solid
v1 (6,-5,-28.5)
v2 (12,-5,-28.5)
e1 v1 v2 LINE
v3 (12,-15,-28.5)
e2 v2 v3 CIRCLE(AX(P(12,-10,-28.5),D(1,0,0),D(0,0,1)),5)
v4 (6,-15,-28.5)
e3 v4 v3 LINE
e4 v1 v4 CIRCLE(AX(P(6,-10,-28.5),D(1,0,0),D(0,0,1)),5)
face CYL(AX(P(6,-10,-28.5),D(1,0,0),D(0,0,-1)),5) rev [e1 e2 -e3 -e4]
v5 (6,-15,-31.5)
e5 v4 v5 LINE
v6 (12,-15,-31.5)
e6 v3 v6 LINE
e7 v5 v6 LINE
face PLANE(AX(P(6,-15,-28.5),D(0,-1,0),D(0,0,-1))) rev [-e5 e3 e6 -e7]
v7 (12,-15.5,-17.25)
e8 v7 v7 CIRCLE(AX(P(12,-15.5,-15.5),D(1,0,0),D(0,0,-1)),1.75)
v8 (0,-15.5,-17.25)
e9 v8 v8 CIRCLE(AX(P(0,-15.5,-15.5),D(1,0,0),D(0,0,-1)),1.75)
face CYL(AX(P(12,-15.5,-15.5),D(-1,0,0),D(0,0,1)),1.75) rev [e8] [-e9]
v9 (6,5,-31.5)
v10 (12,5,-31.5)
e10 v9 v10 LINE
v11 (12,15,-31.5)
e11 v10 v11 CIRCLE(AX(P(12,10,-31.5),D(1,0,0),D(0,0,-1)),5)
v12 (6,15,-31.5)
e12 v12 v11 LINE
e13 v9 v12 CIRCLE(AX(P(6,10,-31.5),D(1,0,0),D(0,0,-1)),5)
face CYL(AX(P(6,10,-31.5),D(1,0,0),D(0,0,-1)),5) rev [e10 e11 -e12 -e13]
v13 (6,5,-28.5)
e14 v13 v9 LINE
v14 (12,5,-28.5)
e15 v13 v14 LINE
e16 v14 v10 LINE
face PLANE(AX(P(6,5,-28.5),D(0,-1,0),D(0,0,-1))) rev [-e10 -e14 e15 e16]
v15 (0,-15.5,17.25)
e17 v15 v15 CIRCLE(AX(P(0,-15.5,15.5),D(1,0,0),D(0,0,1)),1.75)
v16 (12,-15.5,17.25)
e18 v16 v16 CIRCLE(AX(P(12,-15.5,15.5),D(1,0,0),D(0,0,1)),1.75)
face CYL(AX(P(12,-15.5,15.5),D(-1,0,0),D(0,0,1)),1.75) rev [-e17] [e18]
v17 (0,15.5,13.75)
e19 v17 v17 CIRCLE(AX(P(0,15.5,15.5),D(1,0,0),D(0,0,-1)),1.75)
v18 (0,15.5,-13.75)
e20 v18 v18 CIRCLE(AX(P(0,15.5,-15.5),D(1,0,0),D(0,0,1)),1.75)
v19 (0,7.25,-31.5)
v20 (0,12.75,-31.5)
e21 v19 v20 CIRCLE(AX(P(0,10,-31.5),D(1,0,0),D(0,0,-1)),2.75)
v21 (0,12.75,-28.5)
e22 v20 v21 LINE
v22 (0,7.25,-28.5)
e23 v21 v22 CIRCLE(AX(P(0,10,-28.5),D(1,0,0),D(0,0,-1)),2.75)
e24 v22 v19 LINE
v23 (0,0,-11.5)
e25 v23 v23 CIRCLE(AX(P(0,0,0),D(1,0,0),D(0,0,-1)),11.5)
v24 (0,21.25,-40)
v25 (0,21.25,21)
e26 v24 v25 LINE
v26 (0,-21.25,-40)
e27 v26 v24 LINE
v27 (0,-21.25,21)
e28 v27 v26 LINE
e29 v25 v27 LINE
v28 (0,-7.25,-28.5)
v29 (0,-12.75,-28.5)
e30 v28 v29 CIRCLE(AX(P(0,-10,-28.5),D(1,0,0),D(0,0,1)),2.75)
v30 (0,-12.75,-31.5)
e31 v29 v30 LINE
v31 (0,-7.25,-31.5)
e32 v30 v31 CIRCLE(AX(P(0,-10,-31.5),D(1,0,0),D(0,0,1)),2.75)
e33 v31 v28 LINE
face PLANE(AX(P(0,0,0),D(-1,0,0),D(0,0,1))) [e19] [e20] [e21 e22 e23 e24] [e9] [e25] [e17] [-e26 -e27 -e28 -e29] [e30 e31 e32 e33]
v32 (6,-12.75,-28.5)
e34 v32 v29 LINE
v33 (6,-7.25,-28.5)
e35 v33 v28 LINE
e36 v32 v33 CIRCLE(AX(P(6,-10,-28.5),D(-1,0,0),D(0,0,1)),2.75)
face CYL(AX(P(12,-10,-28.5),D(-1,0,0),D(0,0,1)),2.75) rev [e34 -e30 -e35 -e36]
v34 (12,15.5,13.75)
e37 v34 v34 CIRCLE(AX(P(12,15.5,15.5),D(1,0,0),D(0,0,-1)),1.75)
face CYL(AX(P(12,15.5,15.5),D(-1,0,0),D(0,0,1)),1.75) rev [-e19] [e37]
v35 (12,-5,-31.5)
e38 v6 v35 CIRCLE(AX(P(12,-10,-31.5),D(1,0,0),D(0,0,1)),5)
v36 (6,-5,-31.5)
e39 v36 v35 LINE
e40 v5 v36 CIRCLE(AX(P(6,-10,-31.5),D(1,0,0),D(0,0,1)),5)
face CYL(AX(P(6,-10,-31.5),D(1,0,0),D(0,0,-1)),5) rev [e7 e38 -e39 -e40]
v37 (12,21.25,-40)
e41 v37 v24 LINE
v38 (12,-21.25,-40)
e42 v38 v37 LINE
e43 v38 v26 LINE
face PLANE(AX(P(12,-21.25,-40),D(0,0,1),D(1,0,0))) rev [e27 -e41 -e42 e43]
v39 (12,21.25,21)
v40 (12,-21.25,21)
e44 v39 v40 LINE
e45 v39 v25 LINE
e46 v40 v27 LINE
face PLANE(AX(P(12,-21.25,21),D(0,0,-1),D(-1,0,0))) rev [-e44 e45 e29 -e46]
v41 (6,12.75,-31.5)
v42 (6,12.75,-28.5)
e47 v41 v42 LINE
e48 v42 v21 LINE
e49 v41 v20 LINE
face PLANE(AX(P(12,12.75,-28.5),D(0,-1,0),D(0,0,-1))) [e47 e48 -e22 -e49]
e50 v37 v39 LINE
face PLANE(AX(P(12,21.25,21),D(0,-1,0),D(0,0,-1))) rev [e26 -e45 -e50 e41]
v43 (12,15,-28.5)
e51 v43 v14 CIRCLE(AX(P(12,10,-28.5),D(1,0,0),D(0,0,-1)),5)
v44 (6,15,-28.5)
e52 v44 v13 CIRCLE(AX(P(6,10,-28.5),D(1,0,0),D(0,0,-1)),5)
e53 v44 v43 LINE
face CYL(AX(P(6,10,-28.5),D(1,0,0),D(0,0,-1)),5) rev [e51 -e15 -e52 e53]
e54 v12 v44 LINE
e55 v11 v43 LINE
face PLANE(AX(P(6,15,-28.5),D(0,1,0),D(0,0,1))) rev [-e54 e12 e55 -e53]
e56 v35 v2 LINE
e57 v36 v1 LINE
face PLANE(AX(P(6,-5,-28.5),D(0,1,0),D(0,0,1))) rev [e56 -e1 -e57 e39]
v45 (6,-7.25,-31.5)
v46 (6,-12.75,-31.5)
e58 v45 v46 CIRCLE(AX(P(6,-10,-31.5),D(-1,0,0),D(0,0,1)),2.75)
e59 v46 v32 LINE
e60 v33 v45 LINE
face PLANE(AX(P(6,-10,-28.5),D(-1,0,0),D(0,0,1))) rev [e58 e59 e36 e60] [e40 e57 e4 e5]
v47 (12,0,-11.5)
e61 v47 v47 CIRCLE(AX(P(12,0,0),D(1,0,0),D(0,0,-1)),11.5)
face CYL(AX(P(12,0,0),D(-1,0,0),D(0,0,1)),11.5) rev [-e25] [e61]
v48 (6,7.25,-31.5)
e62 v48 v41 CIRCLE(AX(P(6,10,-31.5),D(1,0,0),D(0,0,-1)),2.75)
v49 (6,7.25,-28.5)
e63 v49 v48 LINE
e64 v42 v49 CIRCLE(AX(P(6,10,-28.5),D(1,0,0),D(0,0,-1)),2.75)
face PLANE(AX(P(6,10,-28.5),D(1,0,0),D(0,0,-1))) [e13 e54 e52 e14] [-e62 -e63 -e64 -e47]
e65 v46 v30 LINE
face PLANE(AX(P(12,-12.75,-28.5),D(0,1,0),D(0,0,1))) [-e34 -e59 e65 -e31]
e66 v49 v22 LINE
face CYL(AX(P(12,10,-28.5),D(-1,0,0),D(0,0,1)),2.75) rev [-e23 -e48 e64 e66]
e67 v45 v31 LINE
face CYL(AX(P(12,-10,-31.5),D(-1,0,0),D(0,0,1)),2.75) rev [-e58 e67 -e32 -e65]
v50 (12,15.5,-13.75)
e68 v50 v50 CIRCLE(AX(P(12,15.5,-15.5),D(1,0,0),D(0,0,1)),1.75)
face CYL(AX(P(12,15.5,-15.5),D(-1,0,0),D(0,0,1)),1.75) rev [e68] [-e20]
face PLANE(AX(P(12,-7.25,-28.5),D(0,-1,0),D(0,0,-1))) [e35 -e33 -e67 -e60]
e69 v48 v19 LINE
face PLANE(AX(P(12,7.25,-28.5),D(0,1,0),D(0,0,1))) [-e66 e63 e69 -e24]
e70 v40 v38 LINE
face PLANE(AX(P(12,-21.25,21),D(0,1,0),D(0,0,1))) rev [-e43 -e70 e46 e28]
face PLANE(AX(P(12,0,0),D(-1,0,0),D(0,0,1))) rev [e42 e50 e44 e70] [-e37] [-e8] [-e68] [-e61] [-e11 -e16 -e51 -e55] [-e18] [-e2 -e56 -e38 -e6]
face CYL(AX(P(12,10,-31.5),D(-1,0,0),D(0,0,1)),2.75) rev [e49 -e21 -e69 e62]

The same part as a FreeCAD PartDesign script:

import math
import FreeCAD as App
import Part
import Sketcher
from FreeCAD import Vector
Q = App.Units.Quantity


def add_polygon(sketch, points):
    """Adds a closed chain of lines whose ends are joined by coincident constraints."""
    first, n = sketch.GeometryCount, len(points)
    for a, b in zip(points, points[1:] + points[:1]):
        sketch.addGeometry(Part.LineSegment(App.Vector(*a, 0), App.Vector(*b, 0)), False)
    for i in range(n):
        sketch.addConstraint(Sketcher.Constraint("Coincident", first + i, 2, first + (i + 1) % n, 1))

doc = App.newDocument("Part")
params = doc.addObject("Spreadsheet::Sheet", "Params")
for row, (alias, value) in enumerate([
    ("sketch1_diameter", "23 mm"),
    ("sketch1_diameter2", "3.5 mm"),
    ("sketch1_height", "61 mm"),
    ("sketch1_height2", "3 mm"),
    ("sketch1_radius", "2.75 mm"),
    ("pad1_length", "12 mm"),
    ("sketch2_radius", "5 mm"),
    ("sketch2_height", "3 mm"),
    ("pocket1_length", "6 mm"),
], start=1):
    params.set(f"A{row}", alias)
    params.set(f"B{row}", "=" + value)
    params.setAlias(f"B{row}", alias)

body = doc.addObject("PartDesign::Body", "Body")

sketch1 = body.newObject("Sketcher::SketchObject", "Sketch")
sketch1.AttachmentSupport = (doc.getObject("YZ_Plane"), [""])
sketch1.MapMode = "FlatFace"
add_polygon(sketch1, [(21.2, 21), (-21.2, 21), (-21.2, -40), (21.2, -40)])
sketch1.addGeometry(Part.Circle(Vector(-15.5, 15.5, 0), Vector(0, 0, 1), 1.8), False)
sketch1.addGeometry(Part.Circle(Vector(-15.5, -15.5, 0), Vector(0, 0, 1), 1.8), False)
sketch1.addGeometry(Part.LineSegment(Vector(-12.8, -31.5, 0), Vector(-12.8, -28.5, 0)), False)
sketch1.addGeometry(Part.ArcOfCircle(Part.Circle(Vector(-10, -28.5, 0), Vector(0, 0, 1), 2.8), math.radians(0), math.radians(180)), False)
sketch1.addGeometry(Part.LineSegment(Vector(-7.2, -28.5, 0), Vector(-7.2, -31.5, 0)), False)
sketch1.addGeometry(Part.ArcOfCircle(Part.Circle(Vector(-10, -31.5, 0), Vector(0, 0, 1), 2.8), math.radians(180), math.radians(360)), False)
sketch1.addGeometry(Part.Circle(Vector(0, 0, 0), Vector(0, 0, 1), 11.5), False)
sketch1.addGeometry(Part.Circle(Vector(15.5, 15.5, 0), Vector(0, 0, 1), 1.8), False)
sketch1.addGeometry(Part.Circle(Vector(15.5, -15.5, 0), Vector(0, 0, 1), 1.8), False)
sketch1.addGeometry(Part.ArcOfCircle(Part.Circle(Vector(10, -28.5, 0), Vector(0, 0, 1), 2.8), math.radians(0), math.radians(180)), False)
sketch1.addGeometry(Part.LineSegment(Vector(12.8, -28.5, 0), Vector(12.8, -31.5, 0)), False)
sketch1.addGeometry(Part.ArcOfCircle(Part.Circle(Vector(10, -31.5, 0), Vector(0, 0, 1), 2.8), math.radians(180), math.radians(360)), False)
sketch1.addGeometry(Part.LineSegment(Vector(7.2, -31.5, 0), Vector(7.2, -28.5, 0)), False)
sketch1.addConstraint([
    Sketcher.Constraint("Tangent", 6, 2, 7, 2),
    Sketcher.Constraint("Tangent", 7, 1, 8, 1),
    Sketcher.Constraint("Tangent", 8, 2, 9, 2),
    Sketcher.Constraint("Tangent", 9, 1, 6, 1),
    Sketcher.Constraint("Tangent", 13, 1, 14, 1),
    Sketcher.Constraint("Tangent", 14, 2, 15, 2),
    Sketcher.Constraint("Tangent", 15, 1, 16, 1),
    Sketcher.Constraint("Tangent", 16, 2, 13, 2),
    Sketcher.Constraint("Horizontal", 0),
    Sketcher.Constraint("Vertical", 1),
    Sketcher.Constraint("Horizontal", 2),
    Sketcher.Constraint("Vertical", 3),
    Sketcher.Constraint("Vertical", 6),
    Sketcher.Constraint("Vertical", 8),
    Sketcher.Constraint("Vertical", 14),
    Sketcher.Constraint("Vertical", 16),
    Sketcher.Constraint("Coincident", 10, 3, -1, 1),
    Sketcher.Constraint("Equal", 4, 5),
    Sketcher.Constraint("Equal", 5, 11),
    Sketcher.Constraint("Equal", 11, 12),
    Sketcher.Constraint("Equal", 9, 13),
    Sketcher.Constraint("Symmetric", 5, 3, 11, 3, -1, 1),
    Sketcher.Constraint("Symmetric", 4, 3, 12, 3, -1, 1),
    Sketcher.Constraint("Symmetric", 4, 3, 11, 3, -2),
    Sketcher.Constraint("Symmetric", 7, 3, 13, 3, -2),
    Sketcher.Constraint("Horizontal", 9, 3, 15, 3),
    Sketcher.Constraint("Diameter", 10, Q("23 mm")),
    Sketcher.Constraint("Diameter", 4, Q("3.5 mm")),
    Sketcher.Constraint("DistanceY", 1, 2, 1, 1, Q("61 mm")),
    Sketcher.Constraint("DistanceY", 6, 1, 6, 2, Q("3 mm")),
    Sketcher.Constraint("Radius", 7, Q("2.75 mm")),
    Sketcher.Constraint("DistanceX", 0, 2, 0, 1, Q("42.5 mm")),
    Sketcher.Constraint("DistanceX", 7, 3, -1, 1, Q("10 mm")),
    Sketcher.Constraint("DistanceY", -1, 1, 0, 2, Q("21 mm")),
    Sketcher.Constraint("DistanceY", 5, 3, 4, 3, Q("31 mm")),
    Sketcher.Constraint("DistanceY", 7, 3, 5, 3, Q("13 mm")),
    Sketcher.Constraint("DistanceX", 4, 3, 11, 3, Q("31 mm")),
    Sketcher.Constraint("DistanceX", 1, 2, 8, 2, Q("14 mm")),
])
sketch1.setExpression("Constraints[30]", "Params.sketch1_diameter")
sketch1.setExpression("Constraints[31]", "Params.sketch1_diameter2")
sketch1.setExpression("Constraints[32]", "Params.sketch1_height")
sketch1.setExpression("Constraints[33]", "Params.sketch1_height2")
sketch1.setExpression("Constraints[34]", "Params.sketch1_radius")
pad1 = body.newObject("PartDesign::Pad", "Pad")
pad1.Profile = sketch1
pad1.setExpression("Length", "Params.pad1_length")

sketch2 = body.newObject("Sketcher::SketchObject", "Sketch001")
sketch2.AttachmentSupport = (doc.getObject("YZ_Plane"), [""])
sketch2.MapMode = "FlatFace"
sketch2.AttachmentOffset = App.Placement(Vector(0, 0, 12), App.Rotation())
sketch2.addGeometry([
    Part.LineSegment(Vector(15, -31.5, 0), Vector(15, -28.5, 0)),
    Part.ArcOfCircle(Part.Circle(Vector(10, -28.5, 0), Vector(0, 0, 1), 5), math.radians(0), math.radians(180)),
    Part.LineSegment(Vector(5, -28.5, 0), Vector(5, -31.5, 0)),
    Part.ArcOfCircle(Part.Circle(Vector(10, -31.5, 0), Vector(0, 0, 1), 5), math.radians(180), math.radians(360)),
    Part.LineSegment(Vector(-15, -28.5, 0), Vector(-15, -31.5, 0)),
    Part.ArcOfCircle(Part.Circle(Vector(-10, -31.5, 0), Vector(0, 0, 1), 5), math.radians(180), math.radians(360)),
    Part.LineSegment(Vector(-5, -31.5, 0), Vector(-5, -28.5, 0)),
    Part.ArcOfCircle(Part.Circle(Vector(-10, -28.5, 0), Vector(0, 0, 1), 5), math.radians(0), math.radians(180)),
], False)
sketch2.addConstraint([
    Sketcher.Constraint("Tangent", 0, 2, 1, 1),
    Sketcher.Constraint("Tangent", 1, 2, 2, 1),
    Sketcher.Constraint("Tangent", 2, 2, 3, 1),
    Sketcher.Constraint("Tangent", 3, 2, 0, 1),
    Sketcher.Constraint("Tangent", 4, 2, 5, 1),
    Sketcher.Constraint("Tangent", 5, 2, 6, 1),
    Sketcher.Constraint("Tangent", 6, 2, 7, 1),
    Sketcher.Constraint("Tangent", 7, 2, 4, 1),
    Sketcher.Constraint("Vertical", 0),
    Sketcher.Constraint("Vertical", 2),
    Sketcher.Constraint("Vertical", 4),
    Sketcher.Constraint("Vertical", 6),
    Sketcher.Constraint("Equal", 3, 5),
    Sketcher.Constraint("Symmetric", 3, 3, 5, 3, -2),
    Sketcher.Constraint("Horizontal", 1, 3, 7, 3),
    Sketcher.Constraint("Radius", 1, Q("5 mm")),
    Sketcher.Constraint("DistanceY", 0, 1, 0, 2, Q("3 mm")),
    Sketcher.Constraint("DistanceX", -1, 1, 1, 3, Q("10 mm")),
    Sketcher.Constraint("DistanceY", 1, 3, -1, 1, Q("28.5 mm")),
])
sketch2.setExpression("Constraints[15]", "Params.sketch2_radius")
sketch2.setExpression("Constraints[16]", "Params.sketch2_height")
pocket1 = body.newObject("PartDesign::Pocket", "Pocket")
pocket1.Profile = sketch2
pocket1.setExpression("Length", "Params.pocket1_length")

doc.recompute()
